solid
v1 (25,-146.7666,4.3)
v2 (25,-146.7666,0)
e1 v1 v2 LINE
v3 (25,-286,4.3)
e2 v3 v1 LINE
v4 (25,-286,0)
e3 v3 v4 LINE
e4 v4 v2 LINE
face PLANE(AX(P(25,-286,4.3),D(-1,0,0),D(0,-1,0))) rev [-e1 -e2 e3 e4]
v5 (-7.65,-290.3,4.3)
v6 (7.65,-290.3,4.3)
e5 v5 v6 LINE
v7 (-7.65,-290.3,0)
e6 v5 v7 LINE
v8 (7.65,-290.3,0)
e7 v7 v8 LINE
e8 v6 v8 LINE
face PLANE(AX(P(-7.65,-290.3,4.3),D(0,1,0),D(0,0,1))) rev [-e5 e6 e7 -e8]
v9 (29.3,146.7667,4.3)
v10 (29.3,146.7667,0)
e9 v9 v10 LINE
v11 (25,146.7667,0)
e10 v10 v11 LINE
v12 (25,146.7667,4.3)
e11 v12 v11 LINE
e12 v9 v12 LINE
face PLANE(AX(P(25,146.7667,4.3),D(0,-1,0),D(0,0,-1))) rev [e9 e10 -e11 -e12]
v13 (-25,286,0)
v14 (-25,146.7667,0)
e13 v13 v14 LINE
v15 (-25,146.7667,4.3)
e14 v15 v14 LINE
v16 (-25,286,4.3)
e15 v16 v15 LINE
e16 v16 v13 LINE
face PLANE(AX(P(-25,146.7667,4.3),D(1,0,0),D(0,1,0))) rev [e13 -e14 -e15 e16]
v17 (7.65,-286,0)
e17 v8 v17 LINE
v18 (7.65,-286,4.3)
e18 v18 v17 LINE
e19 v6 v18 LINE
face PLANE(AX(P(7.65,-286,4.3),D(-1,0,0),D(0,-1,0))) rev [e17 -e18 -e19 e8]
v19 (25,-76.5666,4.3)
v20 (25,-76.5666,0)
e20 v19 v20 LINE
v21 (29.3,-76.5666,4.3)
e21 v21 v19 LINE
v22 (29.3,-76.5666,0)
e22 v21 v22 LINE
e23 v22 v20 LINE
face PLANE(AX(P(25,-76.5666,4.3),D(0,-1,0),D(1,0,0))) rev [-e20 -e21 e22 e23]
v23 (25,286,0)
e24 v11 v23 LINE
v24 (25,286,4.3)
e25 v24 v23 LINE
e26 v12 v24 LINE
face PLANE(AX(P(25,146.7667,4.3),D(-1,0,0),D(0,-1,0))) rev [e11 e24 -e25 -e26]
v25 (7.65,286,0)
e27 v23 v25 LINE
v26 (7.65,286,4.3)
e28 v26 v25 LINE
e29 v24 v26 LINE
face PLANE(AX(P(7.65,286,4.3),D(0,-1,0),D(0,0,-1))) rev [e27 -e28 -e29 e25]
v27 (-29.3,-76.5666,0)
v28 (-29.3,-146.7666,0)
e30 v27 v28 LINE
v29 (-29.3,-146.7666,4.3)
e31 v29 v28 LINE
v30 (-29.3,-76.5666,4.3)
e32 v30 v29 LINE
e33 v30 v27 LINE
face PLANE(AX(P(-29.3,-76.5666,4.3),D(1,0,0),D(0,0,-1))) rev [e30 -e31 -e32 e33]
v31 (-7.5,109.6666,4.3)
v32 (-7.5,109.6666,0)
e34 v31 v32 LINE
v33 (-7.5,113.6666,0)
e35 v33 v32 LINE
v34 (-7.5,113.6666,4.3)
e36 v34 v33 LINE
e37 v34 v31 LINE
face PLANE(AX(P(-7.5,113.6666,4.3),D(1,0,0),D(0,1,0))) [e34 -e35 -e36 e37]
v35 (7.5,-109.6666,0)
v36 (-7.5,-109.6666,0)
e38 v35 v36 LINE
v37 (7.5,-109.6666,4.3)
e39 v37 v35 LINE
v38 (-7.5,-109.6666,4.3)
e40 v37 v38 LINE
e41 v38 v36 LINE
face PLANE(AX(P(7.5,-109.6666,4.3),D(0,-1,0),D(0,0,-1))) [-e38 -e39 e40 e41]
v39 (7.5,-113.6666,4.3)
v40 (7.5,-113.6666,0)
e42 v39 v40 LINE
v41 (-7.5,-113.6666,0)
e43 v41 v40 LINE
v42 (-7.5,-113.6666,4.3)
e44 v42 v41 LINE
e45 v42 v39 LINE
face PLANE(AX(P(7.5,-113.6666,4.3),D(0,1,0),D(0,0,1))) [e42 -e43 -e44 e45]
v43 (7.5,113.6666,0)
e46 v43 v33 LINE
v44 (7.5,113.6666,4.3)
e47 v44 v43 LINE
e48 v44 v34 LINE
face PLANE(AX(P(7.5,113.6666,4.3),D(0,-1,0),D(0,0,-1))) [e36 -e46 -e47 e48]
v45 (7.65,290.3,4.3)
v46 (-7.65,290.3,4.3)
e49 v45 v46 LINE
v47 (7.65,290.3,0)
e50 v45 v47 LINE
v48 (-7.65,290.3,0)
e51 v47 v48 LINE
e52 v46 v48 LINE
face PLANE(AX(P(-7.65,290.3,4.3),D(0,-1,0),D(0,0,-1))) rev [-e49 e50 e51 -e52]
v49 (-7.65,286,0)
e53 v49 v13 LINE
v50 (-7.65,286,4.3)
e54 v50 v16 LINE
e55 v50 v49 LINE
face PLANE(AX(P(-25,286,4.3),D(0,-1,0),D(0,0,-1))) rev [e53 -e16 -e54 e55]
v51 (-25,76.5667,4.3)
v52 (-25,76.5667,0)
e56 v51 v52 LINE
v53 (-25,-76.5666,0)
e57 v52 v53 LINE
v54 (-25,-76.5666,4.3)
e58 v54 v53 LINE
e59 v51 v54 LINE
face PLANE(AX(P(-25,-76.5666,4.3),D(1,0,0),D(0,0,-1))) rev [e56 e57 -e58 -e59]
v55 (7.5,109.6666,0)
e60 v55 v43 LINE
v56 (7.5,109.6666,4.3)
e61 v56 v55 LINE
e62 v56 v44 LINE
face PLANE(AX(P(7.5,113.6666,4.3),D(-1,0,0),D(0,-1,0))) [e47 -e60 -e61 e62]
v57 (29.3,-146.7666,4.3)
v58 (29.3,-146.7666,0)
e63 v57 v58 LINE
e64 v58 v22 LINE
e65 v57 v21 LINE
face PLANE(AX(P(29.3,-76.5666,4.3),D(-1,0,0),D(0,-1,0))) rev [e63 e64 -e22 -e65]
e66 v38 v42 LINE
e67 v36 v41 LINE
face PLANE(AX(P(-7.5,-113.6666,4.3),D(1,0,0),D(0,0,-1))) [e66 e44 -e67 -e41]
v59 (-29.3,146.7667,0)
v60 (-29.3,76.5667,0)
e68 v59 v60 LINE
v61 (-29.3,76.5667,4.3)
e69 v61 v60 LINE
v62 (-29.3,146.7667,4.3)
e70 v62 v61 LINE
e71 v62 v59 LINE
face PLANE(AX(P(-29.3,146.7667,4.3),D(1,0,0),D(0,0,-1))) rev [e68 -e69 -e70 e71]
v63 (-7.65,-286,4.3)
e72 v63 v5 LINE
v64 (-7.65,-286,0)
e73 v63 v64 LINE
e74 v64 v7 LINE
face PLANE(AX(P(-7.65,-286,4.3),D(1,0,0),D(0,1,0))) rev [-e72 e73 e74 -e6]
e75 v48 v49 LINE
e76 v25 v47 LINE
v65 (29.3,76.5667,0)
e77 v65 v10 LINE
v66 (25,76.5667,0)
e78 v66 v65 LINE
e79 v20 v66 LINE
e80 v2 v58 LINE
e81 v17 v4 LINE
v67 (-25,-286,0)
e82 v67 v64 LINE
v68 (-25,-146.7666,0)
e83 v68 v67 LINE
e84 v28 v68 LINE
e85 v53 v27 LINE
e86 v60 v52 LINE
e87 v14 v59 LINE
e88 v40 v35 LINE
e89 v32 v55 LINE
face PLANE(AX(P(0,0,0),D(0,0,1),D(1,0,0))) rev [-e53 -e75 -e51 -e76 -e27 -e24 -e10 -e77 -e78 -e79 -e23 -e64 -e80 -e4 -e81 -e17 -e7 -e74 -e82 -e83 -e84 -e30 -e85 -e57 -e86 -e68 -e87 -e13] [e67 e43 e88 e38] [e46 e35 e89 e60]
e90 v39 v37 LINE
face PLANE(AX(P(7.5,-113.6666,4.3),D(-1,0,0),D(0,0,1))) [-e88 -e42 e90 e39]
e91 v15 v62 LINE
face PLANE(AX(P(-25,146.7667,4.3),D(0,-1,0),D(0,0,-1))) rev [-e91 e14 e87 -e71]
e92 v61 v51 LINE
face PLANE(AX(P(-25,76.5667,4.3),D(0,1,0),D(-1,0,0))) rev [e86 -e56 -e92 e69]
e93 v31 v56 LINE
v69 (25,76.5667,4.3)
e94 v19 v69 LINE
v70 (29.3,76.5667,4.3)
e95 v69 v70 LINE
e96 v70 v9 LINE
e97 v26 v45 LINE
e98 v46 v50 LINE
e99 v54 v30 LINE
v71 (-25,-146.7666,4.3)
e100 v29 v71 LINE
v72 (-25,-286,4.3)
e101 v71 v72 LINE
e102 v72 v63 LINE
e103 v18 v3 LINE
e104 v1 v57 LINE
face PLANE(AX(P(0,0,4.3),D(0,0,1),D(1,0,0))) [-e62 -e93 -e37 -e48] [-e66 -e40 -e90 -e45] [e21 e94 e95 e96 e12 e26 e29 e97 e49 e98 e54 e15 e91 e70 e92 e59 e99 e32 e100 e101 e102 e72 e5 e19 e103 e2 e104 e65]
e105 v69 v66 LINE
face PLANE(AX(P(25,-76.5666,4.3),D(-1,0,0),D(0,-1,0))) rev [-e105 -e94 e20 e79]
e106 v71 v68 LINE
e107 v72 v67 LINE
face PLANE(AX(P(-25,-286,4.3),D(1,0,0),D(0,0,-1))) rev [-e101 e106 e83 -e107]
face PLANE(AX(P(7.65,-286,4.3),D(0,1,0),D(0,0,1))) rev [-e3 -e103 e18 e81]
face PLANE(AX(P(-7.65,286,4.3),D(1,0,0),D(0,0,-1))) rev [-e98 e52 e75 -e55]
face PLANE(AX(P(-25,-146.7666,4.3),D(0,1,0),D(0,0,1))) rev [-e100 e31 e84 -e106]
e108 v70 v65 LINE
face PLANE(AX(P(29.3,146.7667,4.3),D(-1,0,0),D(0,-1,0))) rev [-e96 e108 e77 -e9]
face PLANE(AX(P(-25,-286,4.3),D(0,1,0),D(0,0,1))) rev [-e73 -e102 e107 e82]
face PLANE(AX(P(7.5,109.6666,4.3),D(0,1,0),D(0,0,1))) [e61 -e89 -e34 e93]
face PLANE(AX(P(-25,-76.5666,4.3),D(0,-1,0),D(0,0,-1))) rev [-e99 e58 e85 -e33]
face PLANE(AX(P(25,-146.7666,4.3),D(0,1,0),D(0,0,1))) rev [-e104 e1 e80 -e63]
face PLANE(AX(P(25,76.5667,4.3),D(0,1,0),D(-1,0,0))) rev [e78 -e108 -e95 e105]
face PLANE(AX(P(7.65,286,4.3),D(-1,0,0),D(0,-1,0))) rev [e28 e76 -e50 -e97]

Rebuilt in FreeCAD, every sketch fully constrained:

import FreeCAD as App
import Part
import Sketcher

V = App.Vector
Q = App.Units.Quantity

doc = App.newDocument("Part")
params = doc.addObject("Spreadsheet::Sheet", "Params")
for row, (alias, value) in enumerate([
    ("sketch1_width", "15 mm"),
    ("sketch1_height", "4 mm"),
    ("sketch1_width2", "15.3 mm"),
    ("sketch1_width3", "4.3 mm"),
    ("sketch1_height2", "70.2 mm"),
    ("pad1_length", "4.3 mm"),
], start=1):
    params.set(f"A{row}", alias)
    params.set(f"B{row}", "=" + value)
    params.setAlias(f"B{row}", alias)

body = doc.addObject("PartDesign::Body", "Body")

sketch1 = body.newObject("Sketcher::SketchObject", "Sketch")
sketch1.AttachmentSupport = (doc.getObject("XY_Plane"), [""])
sketch1.MapMode = "FlatFace"
sketch1.addGeometry([
    Part.LineSegment(V(-25, -286, 0), V(-7.7, -286, 0)),
    Part.LineSegment(V(-7.7, -286, 0), V(-7.7, -290.3, 0)),
    Part.LineSegment(V(-7.7, -290.3, 0), V(7.7, -290.3, 0)),
    Part.LineSegment(V(7.7, -290.3, 0), V(7.7, -286, 0)),
    Part.LineSegment(V(7.7, -286, 0), V(25, -286, 0)),
    Part.LineSegment(V(25, -286, 0), V(25, -146.8, 0)),
    Part.LineSegment(V(25, -146.8, 0), V(29.3, -146.8, 0)),
    Part.LineSegment(V(29.3, -146.8, 0), V(29.3, -76.6, 0)),
    Part.LineSegment(V(29.3, -76.6, 0), V(25, -76.6, 0)),
    Part.LineSegment(V(25, -76.6, 0), V(25, 76.6, 0)),
    Part.LineSegment(V(25, 76.6, 0), V(29.3, 76.6, 0)),
    Part.LineSegment(V(29.3, 76.6, 0), V(29.3, 146.8, 0)),
    Part.LineSegment(V(29.3, 146.8, 0), V(25, 146.8, 0)),
    Part.LineSegment(V(25, 146.8, 0), V(25, 286, 0)),
    Part.LineSegment(V(25, 286, 0), V(7.7, 286, 0)),
    Part.LineSegment(V(7.7, 286, 0), V(7.7, 290.3, 0)),
    Part.LineSegment(V(7.7, 290.3, 0), V(-7.7, 290.3, 0)),
    Part.LineSegment(V(-7.7, 290.3, 0), V(-7.7, 286, 0)),
    Part.LineSegment(V(-7.7, 286, 0), V(-25, 286, 0)),
    Part.LineSegment(V(-25, 286, 0), V(-25, 146.8, 0)),
    Part.LineSegment(V(-25, 146.8, 0), V(-29.3, 146.8, 0)),
    Part.LineSegment(V(-29.3, 146.8, 0), V(-29.3, 76.6, 0)),
    Part.LineSegment(V(-29.3, 76.6, 0), V(-25, 76.6, 0)),
    Part.LineSegment(V(-25, 76.6, 0), V(-25, -76.6, 0)),
    Part.LineSegment(V(-25, -76.6, 0), V(-29.3, -76.6, 0)),
    Part.LineSegment(V(-29.3, -76.6, 0), V(-29.3, -146.8, 0)),
    Part.LineSegment(V(-29.3, -146.8, 0), V(-25, -146.8, 0)),
    Part.LineSegment(V(-25, -146.8, 0), V(-25, -286, 0)),
    Part.LineSegment(V(7.5, -113.7, 0), V(-7.5, -113.7, 0)),
    Part.LineSegment(V(-7.5, -113.7, 0), V(-7.5, -109.7, 0)),
    Part.LineSegment(V(-7.5, -109.7, 0), V(7.5, -109.7, 0)),
    Part.LineSegment(V(7.5, -109.7, 0), V(7.5, -113.7, 0)),
    Part.LineSegment(V(7.5, 109.7, 0), V(-7.5, 109.7, 0)),
    Part.LineSegment(V(-7.5, 109.7, 0), V(-7.5, 113.7, 0)),
    Part.LineSegment(V(-7.5, 113.7, 0), V(7.5, 113.7, 0)),
    Part.LineSegment(V(7.5, 113.7, 0), V(7.5, 109.7, 0)),
], False)
sketch1.addConstraint([
    Sketcher.Constraint("Coincident", 0, 2, 1, 1),
    Sketcher.Constraint("Coincident", 1, 2, 2, 1),
    Sketcher.Constraint("Coincident", 2, 2, 3, 1),
    Sketcher.Constraint("Coincident", 3, 2, 4, 1),
    Sketcher.Constraint("Coincident", 4, 2, 5, 1),
    Sketcher.Constraint("Coincident", 5, 2, 6, 1),
    Sketcher.Constraint("Coincident", 6, 2, 7, 1),
    Sketcher.Constraint("Coincident", 7, 2, 8, 1),
    Sketcher.Constraint("Coincident", 8, 2, 9, 1),
    Sketcher.Constraint("Coincident", 9, 2, 10, 1),
    Sketcher.Constraint("Coincident", 10, 2, 11, 1),
    Sketcher.Constraint("Coincident", 11, 2, 12, 1),
    Sketcher.Constraint("Coincident", 12, 2, 13, 1),
    Sketcher.Constraint("Coincident", 13, 2, 14, 1),
    Sketcher.Constraint("Coincident", 14, 2, 15, 1),
    Sketcher.Constraint("Coincident", 15, 2, 16, 1),
    Sketcher.Constraint("Coincident", 16, 2, 17, 1),
    Sketcher.Constraint("Coincident", 17, 2, 18, 1),
    Sketcher.Constraint("Coincident", 18, 2, 19, 1),
    Sketcher.Constraint("Coincident", 19, 2, 20, 1),
    Sketcher.Constraint("Coincident", 20, 2, 21, 1),
    Sketcher.Constraint("Coincident", 21, 2, 22, 1),
    Sketcher.Constraint("Coincident", 22, 2, 23, 1),
    Sketcher.Constraint("Coincident", 23, 2, 24, 1),
    Sketcher.Constraint("Coincident", 24, 2, 25, 1),
    Sketcher.Constraint("Coincident", 25, 2, 26, 1),
    Sketcher.Constraint("Coincident", 26, 2, 27, 1),
    Sketcher.Constraint("Coincident", 27, 2, 0, 1),
    Sketcher.Constraint("Coincident", 28, 2, 29, 1),
    Sketcher.Constraint("Coincident", 29, 2, 30, 1),
    Sketcher.Constraint("Coincident", 30, 2, 31, 1),
    Sketcher.Constraint("Coincident", 31, 2, 28, 1),
    Sketcher.Constraint("Coincident", 32, 2, 33, 1),
    Sketcher.Constraint("Coincident", 33, 2, 34, 1),
    Sketcher.Constraint("Coincident", 34, 2, 35, 1),
    Sketcher.Constraint("Coincident", 35, 2, 32, 1),
    Sketcher.Constraint("Horizontal", 0),
    Sketcher.Constraint("Vertical", 1),
    Sketcher.Constraint("Horizontal", 2),
    Sketcher.Constraint("Vertical", 3),
    Sketcher.Constraint("Horizontal", 4),
    Sketcher.Constraint("Vertical", 5),
    Sketcher.Constraint("Horizontal", 6),
    Sketcher.Constraint("Vertical", 7),
    Sketcher.Constraint("Horizontal", 8),
    Sketcher.Constraint("Vertical", 9),
    Sketcher.Constraint("Horizontal", 10),
    Sketcher.Constraint("Vertical", 11),
    Sketcher.Constraint("Horizontal", 12),
    Sketcher.Constraint("Vertical", 13),
    Sketcher.Constraint("Horizontal", 14),
    Sketcher.Constraint("Vertical", 15),
    Sketcher.Constraint("Horizontal", 16),
    Sketcher.Constraint("Vertical", 17),
    Sketcher.Constraint("Horizontal", 18),
    Sketcher.Constraint("Vertical", 19),
    Sketcher.Constraint("Horizontal", 20),
    Sketcher.Constraint("Vertical", 21),
    Sketcher.Constraint("Horizontal", 22),
    Sketcher.Constraint("Vertical", 23),
    Sketcher.Constraint("Horizontal", 24),
    Sketcher.Constraint("Vertical", 25),
    Sketcher.Constraint("Horizontal", 26),
    Sketcher.Constraint("Vertical", 27),
    Sketcher.Constraint("Horizontal", 28),
    Sketcher.Constraint("Vertical", 29),
    Sketcher.Constraint("Horizontal", 30),
    Sketcher.Constraint("Vertical", 31),
    Sketcher.Constraint("Horizontal", 32),
    Sketcher.Constraint("Vertical", 33),
    Sketcher.Constraint("Horizontal", 34),
    Sketcher.Constraint("Vertical", 35),
    Sketcher.Constraint("Symmetric", 0, 2, 14, 2, -1, 1),
    Sketcher.Constraint("Symmetric", 2, 2, 16, 2, -1, 1),
    Sketcher.Constraint("Symmetric", 4, 2, 18, 2, -1, 1),
    Sketcher.Constraint("Symmetric", 30, 2, 32, 2, -1, 1),
    Sketcher.Constraint("Symmetric", 28, 2, 34, 2, -1, 1),
    Sketcher.Constraint("Symmetric", 0, 2, 3, 2, -2),
    Sketcher.Constraint("Symmetric", 12, 2, 19, 2, -2),
    Sketcher.Constraint("Symmetric", 10, 2, 21, 2, -2),
    Sketcher.Constraint("Symmetric", 8, 2, 23, 2, -2),
    Sketcher.Constraint("Symmetric", 6, 2, 25, 2, -2),
    Sketcher.Constraint("Vertical", 5, 2, 8, 2),
    Sketcher.Constraint("Vertical", 7, 2, 10, 2),
    Sketcher.Constraint("Vertical", 23, 2, 26, 2),
    Sketcher.Constraint("Vertical", 29, 2, 32, 2),
    Sketcher.Constraint("Equal", 26, 1),
    Sketcher.Constraint("Equal", 7, 11),
    Sketcher.Constraint("DistanceX", 28, 2, 28, 1, Q("15 mm")),
    Sketcher.Constraint("DistanceY", 29, 1, 29, 2, Q("4 mm")),
    Sketcher.Constraint("DistanceX", 2, 1, 2, 2, Q("15.3 mm")),
    Sketcher.Constraint("DistanceX", 6, 1, 6, 2, Q("4.3 mm")),
    Sketcher.Constraint("DistanceY", 7, 1, 7, 2, Q("70.2 mm")),
    Sketcher.Constraint("DistanceY", 0, 2, -1, 1, Q("286 mm")),
    Sketcher.Constraint("DistanceX", -1, 1, 4, 2, Q("25 mm")),
    Sketcher.Constraint("DistanceY", 26, 2, 28, 2, Q("33.1 mm")),
    Sketcher.Constraint("DistanceY", 5, 1, 5, 2, Q("139.2334 mm")),
    Sketcher.Constraint("DistanceY", 9, 1, 9, 2, Q("153.1333 mm")),
])
sketch1.setExpression("Constraints[88]", "Params.sketch1_width")
sketch1.setExpression("Constraints[89]", "Params.sketch1_height")
sketch1.setExpression("Constraints[90]", "Params.sketch1_width2")
sketch1.setExpression("Constraints[91]", "Params.sketch1_width3")
sketch1.setExpression("Constraints[92]", "Params.sketch1_height2")
pad1 = body.newObject("PartDesign::Pad", "Pad")
pad1.Profile = sketch1
pad1.setExpression("Length", "Params.pad1_length")

doc.recompute()
